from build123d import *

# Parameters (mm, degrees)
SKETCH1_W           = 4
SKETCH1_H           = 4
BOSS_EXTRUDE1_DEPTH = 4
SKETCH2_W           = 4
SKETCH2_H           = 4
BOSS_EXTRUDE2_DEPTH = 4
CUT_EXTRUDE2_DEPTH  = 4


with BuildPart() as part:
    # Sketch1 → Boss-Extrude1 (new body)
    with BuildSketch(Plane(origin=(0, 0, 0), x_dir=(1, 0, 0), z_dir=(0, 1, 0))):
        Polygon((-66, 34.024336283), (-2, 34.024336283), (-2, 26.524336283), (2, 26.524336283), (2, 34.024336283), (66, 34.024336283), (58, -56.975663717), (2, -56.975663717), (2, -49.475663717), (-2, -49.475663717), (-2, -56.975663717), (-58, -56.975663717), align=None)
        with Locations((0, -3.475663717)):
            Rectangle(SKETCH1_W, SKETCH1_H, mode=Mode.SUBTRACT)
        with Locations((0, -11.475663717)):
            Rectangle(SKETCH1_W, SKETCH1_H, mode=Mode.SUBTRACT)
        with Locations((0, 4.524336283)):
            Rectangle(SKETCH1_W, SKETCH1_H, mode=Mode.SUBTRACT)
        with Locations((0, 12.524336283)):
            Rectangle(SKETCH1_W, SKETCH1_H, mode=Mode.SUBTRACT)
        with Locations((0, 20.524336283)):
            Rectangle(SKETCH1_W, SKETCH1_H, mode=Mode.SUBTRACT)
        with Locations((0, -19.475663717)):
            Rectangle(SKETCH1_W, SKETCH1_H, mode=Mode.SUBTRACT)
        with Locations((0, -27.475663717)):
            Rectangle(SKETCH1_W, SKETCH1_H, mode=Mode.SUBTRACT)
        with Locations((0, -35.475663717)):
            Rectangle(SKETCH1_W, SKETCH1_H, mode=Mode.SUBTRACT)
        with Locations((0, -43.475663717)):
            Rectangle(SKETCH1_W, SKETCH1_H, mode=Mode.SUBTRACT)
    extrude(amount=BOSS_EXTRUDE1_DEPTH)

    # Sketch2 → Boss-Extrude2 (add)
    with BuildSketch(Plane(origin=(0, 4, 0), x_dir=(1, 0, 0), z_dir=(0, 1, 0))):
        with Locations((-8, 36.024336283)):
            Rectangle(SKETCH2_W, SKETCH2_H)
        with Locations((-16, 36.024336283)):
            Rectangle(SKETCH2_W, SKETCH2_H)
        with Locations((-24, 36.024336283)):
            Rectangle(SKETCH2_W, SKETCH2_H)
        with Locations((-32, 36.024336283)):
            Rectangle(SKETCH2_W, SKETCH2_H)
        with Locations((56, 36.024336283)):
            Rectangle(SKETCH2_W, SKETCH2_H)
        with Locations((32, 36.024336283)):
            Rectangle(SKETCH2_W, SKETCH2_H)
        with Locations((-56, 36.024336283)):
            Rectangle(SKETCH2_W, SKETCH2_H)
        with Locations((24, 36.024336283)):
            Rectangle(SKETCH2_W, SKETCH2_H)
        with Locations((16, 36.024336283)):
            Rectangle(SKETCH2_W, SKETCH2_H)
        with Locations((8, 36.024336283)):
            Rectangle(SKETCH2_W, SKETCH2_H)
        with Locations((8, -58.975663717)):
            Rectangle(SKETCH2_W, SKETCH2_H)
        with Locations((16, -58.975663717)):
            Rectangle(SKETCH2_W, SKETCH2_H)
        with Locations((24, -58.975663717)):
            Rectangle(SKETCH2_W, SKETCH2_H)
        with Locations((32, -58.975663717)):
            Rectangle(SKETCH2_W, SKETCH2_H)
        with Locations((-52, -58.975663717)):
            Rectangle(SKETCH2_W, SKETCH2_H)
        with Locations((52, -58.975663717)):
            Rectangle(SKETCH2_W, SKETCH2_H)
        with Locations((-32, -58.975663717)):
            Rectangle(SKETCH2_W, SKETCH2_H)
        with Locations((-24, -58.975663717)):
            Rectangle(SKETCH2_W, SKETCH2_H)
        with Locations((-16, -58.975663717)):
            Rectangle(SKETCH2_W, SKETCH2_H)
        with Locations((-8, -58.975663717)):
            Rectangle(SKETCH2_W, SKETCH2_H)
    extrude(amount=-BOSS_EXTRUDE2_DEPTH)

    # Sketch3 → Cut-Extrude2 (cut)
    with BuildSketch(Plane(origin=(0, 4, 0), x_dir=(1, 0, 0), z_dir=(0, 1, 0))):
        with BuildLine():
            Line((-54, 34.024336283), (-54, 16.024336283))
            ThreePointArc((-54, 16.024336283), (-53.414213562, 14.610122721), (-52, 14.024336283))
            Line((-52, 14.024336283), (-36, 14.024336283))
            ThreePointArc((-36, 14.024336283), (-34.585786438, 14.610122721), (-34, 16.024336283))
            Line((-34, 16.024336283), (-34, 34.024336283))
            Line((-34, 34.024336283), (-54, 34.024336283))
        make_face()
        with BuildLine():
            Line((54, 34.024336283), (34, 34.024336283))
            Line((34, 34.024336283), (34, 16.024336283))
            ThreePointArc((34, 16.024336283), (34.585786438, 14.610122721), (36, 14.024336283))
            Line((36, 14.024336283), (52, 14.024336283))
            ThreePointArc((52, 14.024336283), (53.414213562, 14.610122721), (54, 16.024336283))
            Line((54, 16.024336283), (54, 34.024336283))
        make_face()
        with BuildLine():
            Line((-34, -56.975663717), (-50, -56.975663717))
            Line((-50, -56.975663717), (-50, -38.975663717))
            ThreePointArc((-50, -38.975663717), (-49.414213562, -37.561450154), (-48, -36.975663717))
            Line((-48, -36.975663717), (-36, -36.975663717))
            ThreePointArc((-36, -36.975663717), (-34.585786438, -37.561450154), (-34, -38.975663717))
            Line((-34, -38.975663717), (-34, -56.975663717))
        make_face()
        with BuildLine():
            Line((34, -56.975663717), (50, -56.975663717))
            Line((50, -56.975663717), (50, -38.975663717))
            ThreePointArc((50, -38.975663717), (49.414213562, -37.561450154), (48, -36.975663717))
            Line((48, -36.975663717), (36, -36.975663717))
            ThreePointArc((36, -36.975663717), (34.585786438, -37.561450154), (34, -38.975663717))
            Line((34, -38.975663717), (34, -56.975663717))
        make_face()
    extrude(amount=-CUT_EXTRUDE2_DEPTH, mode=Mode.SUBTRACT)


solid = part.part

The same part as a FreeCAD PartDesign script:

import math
import FreeCAD as App
import Part
import Sketcher
from FreeCAD import Vector
Q = App.Units.Quantity

doc = App.newDocument("Part")
body = doc.addObject("PartDesign::Body", "Body")

sketch1 = body.newObject("Sketcher::SketchObject", "Sketch")
sketch1.AttachmentSupport = (doc.getObject("XZ_Plane"), [""])
sketch1.MapMode = "FlatFace"
sketch1.addGeometry(Part.LineSegment(Vector(-2, -34.024336, 0), Vector(-66, -34.024336, 0)), False)
sketch1.addGeometry(Part.LineSegment(Vector(-66, -34.024336, 0), Vector(-58, 56.975664, 0)), False)
sketch1.addGeometry(Part.LineSegment(Vector(-58, 56.975664, 0), Vector(-2, 56.975664, 0)), False)
sketch1.addGeometry(Part.LineSegment(Vector(-2, 56.975664, 0), Vector(-2, 49.475664, 0)), False)
sketch1.addGeometry(Part.LineSegment(Vector(-2, 49.475664, 0), Vector(2, 49.475664, 0)), False)
sketch1.addGeometry(Part.LineSegment(Vector(2, 49.475664, 0), Vector(2, 56.975664, 0)), False)
sketch1.addGeometry(Part.LineSegment(Vector(2, 56.975664, 0), Vector(58, 56.975664, 0)), False)
sketch1.addGeometry(Part.LineSegment(Vector(58, 56.975664, 0), Vector(66, -34.024336, 0)), False)
sketch1.addGeometry(Part.LineSegment(Vector(66, -34.024336, 0), Vector(2, -34.024336, 0)), False)
sketch1.addGeometry(Part.LineSegment(Vector(2, -34.024336, 0), Vector(2, -26.524336, 0)), False)
sketch1.addGeometry(Part.LineSegment(Vector(2, -26.524336, 0), Vector(-2, -26.524336, 0)), False)
sketch1.addGeometry(Part.LineSegment(Vector(-2, -26.524336, 0), Vector(-2, -34.024336, 0)), False)
sketch1.addGeometry(Part.LineSegment(Vector(-2, 45.475664, 0), Vector(-2, 41.475664, 0)), False)
sketch1.addGeometry(Part.LineSegment(Vector(-2, 41.475664, 0), Vector(2, 41.475664, 0)), False)
sketch1.addGeometry(Part.LineSegment(Vector(2, 41.475664, 0), Vector(2, 45.475664, 0)), False)
sketch1.addGeometry(Part.LineSegment(Vector(2, 45.475664, 0), Vector(-2, 45.475664, 0)), False)
sketch1.addGeometry(Part.LineSegment(Vector(-2, 37.475664, 0), Vector(-2, 33.475664, 0)), False)
sketch1.addGeometry(Part.LineSegment(Vector(-2, 33.475664, 0), Vector(2, 33.475664, 0)), False)
sketch1.addGeometry(Part.LineSegment(Vector(2, 33.475664, 0), Vector(2, 37.475664, 0)), False)
sketch1.addGeometry(Part.LineSegment(Vector(2, 37.475664, 0), Vector(-2, 37.475664, 0)), False)
sketch1.addGeometry(Part.LineSegment(Vector(-2, 29.475664, 0), Vector(-2, 25.475664, 0)), False)
sketch1.addGeometry(Part.LineSegment(Vector(-2, 25.475664, 0), Vector(2, 25.475664, 0)), False)
sketch1.addGeometry(Part.LineSegment(Vector(2, 25.475664, 0), Vector(2, 29.475664, 0)), False)
sketch1.addGeometry(Part.LineSegment(Vector(2, 29.475664, 0), Vector(-2, 29.475664, 0)), False)
sketch1.addGeometry(Part.LineSegment(Vector(-2, 21.475664, 0), Vector(-2, 17.475664, 0)), False)
sketch1.addGeometry(Part.LineSegment(Vector(-2, 17.475664, 0), Vector(2, 17.475664, 0)), False)
sketch1.addGeometry(Part.LineSegment(Vector(2, 17.475664, 0), Vector(2, 21.475664, 0)), False)
sketch1.addGeometry(Part.LineSegment(Vector(2, 21.475664, 0), Vector(-2, 21.475664, 0)), False)
sketch1.addGeometry(Part.LineSegment(Vector(-2, 13.475664, 0), Vector(-2, 9.475664, 0)), False)
sketch1.addGeometry(Part.LineSegment(Vector(-2, 9.475664, 0), Vector(2, 9.475664, 0)), False)
sketch1.addGeometry(Part.LineSegment(Vector(2, 9.475664, 0), Vector(2, 13.475664, 0)), False)
sketch1.addGeometry(Part.LineSegment(Vector(2, 13.475664, 0), Vector(-2, 13.475664, 0)), False)
sketch1.addGeometry(Part.LineSegment(Vector(-2, 5.475664, 0), Vector(-2, 1.475664, 0)), False)
sketch1.addGeometry(Part.LineSegment(Vector(-2, 1.475664, 0), Vector(2, 1.475664, 0)), False)
sketch1.addGeometry(Part.LineSegment(Vector(2, 1.475664, 0), Vector(2, 5.475664, 0)), False)
sketch1.addGeometry(Part.LineSegment(Vector(2, 5.475664, 0), Vector(-2, 5.475664, 0)), False)
sketch1.addGeometry(Part.LineSegment(Vector(-2, -2.524336, 0), Vector(-2, -6.524336, 0)), False)
sketch1.addGeometry(Part.LineSegment(Vector(-2, -6.524336, 0), Vector(2, -6.524336, 0)), False)
sketch1.addGeometry(Part.LineSegment(Vector(2, -6.524336, 0), Vector(2, -2.524336, 0)), False)
sketch1.addGeometry(Part.LineSegment(Vector(2, -2.524336, 0), Vector(-2, -2.524336, 0)), False)
sketch1.addGeometry(Part.LineSegment(Vector(-2, -10.524336, 0), Vector(-2, -14.524336, 0)), False)
sketch1.addGeometry(Part.LineSegment(Vector(-2, -14.524336, 0), Vector(2, -14.524336, 0)), False)
sketch1.addGeometry(Part.LineSegment(Vector(2, -14.524336, 0), Vector(2, -10.524336, 0)), False)
sketch1.addGeometry(Part.LineSegment(Vector(2, -10.524336, 0), Vector(-2, -10.524336, 0)), False)
sketch1.addGeometry(Part.LineSegment(Vector(-2, -18.524336, 0), Vector(-2, -22.524336, 0)), False)
sketch1.addGeometry(Part.LineSegment(Vector(-2, -22.524336, 0), Vector(2, -22.524336, 0)), False)
sketch1.addGeometry(Part.LineSegment(Vector(2, -22.524336, 0), Vector(2, -18.524336, 0)), False)
sketch1.addGeometry(Part.LineSegment(Vector(2, -18.524336, 0), Vector(-2, -18.524336, 0)), False)
sketch1.addConstraint(Sketcher.Constraint("Coincident", 0, 2, 1, 1))
sketch1.addConstraint(Sketcher.Constraint("Coincident", 1, 2, 2, 1))
sketch1.addConstraint(Sketcher.Constraint("Coincident", 2, 2, 3, 1))
sketch1.addConstraint(Sketcher.Constraint("Coincident", 3, 2, 4, 1))
sketch1.addConstraint(Sketcher.Constraint("Coincident", 4, 2, 5, 1))
sketch1.addConstraint(Sketcher.Constraint("Coincident", 5, 2, 6, 1))
sketch1.addConstraint(Sketcher.Constraint("Coincident", 6, 2, 7, 1))
sketch1.addConstraint(Sketcher.Constraint("Coincident", 7, 2, 8, 1))
sketch1.addConstraint(Sketcher.Constraint("Coincident", 8, 2, 9, 1))
sketch1.addConstraint(Sketcher.Constraint("Coincident", 9, 2, 10, 1))
sketch1.addConstraint(Sketcher.Constraint("Coincident", 10, 2, 11, 1))
sketch1.addConstraint(Sketcher.Constraint("Coincident", 11, 2, 0, 1))
sketch1.addConstraint(Sketcher.Constraint("Coincident", 12, 2, 13, 1))
sketch1.addConstraint(Sketcher.Constraint("Coincident", 13, 2, 14, 1))
sketch1.addConstraint(Sketcher.Constraint("Coincident", 14, 2, 15, 1))
sketch1.addConstraint(Sketcher.Constraint("Coincident", 15, 2, 12, 1))
sketch1.addConstraint(Sketcher.Constraint("Coincident", 16, 2, 17, 1))
sketch1.addConstraint(Sketcher.Constraint("Coincident", 17, 2, 18, 1))
sketch1.addConstraint(Sketcher.Constraint("Coincident", 18, 2, 19, 1))
sketch1.addConstraint(Sketcher.Constraint("Coincident", 19, 2, 16, 1))
sketch1.addConstraint(Sketcher.Constraint("Coincident", 20, 2, 21, 1))
sketch1.addConstraint(Sketcher.Constraint("Coincident", 21, 2, 22, 1))
sketch1.addConstraint(Sketcher.Constraint("Coincident", 22, 2, 23, 1))
sketch1.addConstraint(Sketcher.Constraint("Coincident", 23, 2, 20, 1))
sketch1.addConstraint(Sketcher.Constraint("Coincident", 24, 2, 25, 1))
sketch1.addConstraint(Sketcher.Constraint("Coincident", 25, 2, 26, 1))
sketch1.addConstraint(Sketcher.Constraint("Coincident", 26, 2, 27, 1))
sketch1.addConstraint(Sketcher.Constraint("Coincident", 27, 2, 24, 1))
sketch1.addConstraint(Sketcher.Constraint("Coincident", 28, 2, 29, 1))
sketch1.addConstraint(Sketcher.Constraint("Coincident", 29, 2, 30, 1))
sketch1.addConstraint(Sketcher.Constraint("Coincident", 30, 2, 31, 1))
sketch1.addConstraint(Sketcher.Constraint("Coincident", 31, 2, 28, 1))
sketch1.addConstraint(Sketcher.Constraint("Coincident", 32, 2, 33, 1))
sketch1.addConstraint(Sketcher.Constraint("Coincident", 33, 2, 34, 1))
sketch1.addConstraint(Sketcher.Constraint("Coincident", 34, 2, 35, 1))
sketch1.addConstraint(Sketcher.Constraint("Coincident", 35, 2, 32, 1))
sketch1.addConstraint(Sketcher.Constraint("Coincident", 36, 2, 37, 1))
sketch1.addConstraint(Sketcher.Constraint("Coincident", 37, 2, 38, 1))
sketch1.addConstraint(Sketcher.Constraint("Coincident", 38, 2, 39, 1))
sketch1.addConstraint(Sketcher.Constraint("Coincident", 39, 2, 36, 1))
sketch1.addConstraint(Sketcher.Constraint("Coincident", 40, 2, 41, 1))
sketch1.addConstraint(Sketcher.Constraint("Coincident", 41, 2, 42, 1))
sketch1.addConstraint(Sketcher.Constraint("Coincident", 42, 2, 43, 1))
sketch1.addConstraint(Sketcher.Constraint("Coincident", 43, 2, 40, 1))
sketch1.addConstraint(Sketcher.Constraint("Coincident", 44, 2, 45, 1))
sketch1.addConstraint(Sketcher.Constraint("Coincident", 45, 2, 46, 1))
sketch1.addConstraint(Sketcher.Constraint("Coincident", 46, 2, 47, 1))
sketch1.addConstraint(Sketcher.Constraint("Coincident", 47, 2, 44, 1))
sketch1.addConstraint(Sketcher.Constraint("Horizontal", 0))
sketch1.addConstraint(Sketcher.Constraint("Horizontal", 2))
sketch1.addConstraint(Sketcher.Constraint("Vertical", 3))
sketch1.addConstraint(Sketcher.Constraint("Horizontal", 4))
sketch1.addConstraint(Sketcher.Constraint("Vertical", 5))
sketch1.addConstraint(Sketcher.Constraint("Horizontal", 6))
sketch1.addConstraint(Sketcher.Constraint("Horizontal", 8))
sketch1.addConstraint(Sketcher.Constraint("Vertical", 9))
sketch1.addConstraint(Sketcher.Constraint("Horizontal", 10))
sketch1.addConstraint(Sketcher.Constraint("Vertical", 11))
sketch1.addConstraint(Sketcher.Constraint("Vertical", 12))
sketch1.addConstraint(Sketcher.Constraint("Horizontal", 13))
sketch1.addConstraint(Sketcher.Constraint("Vertical", 14))
sketch1.addConstraint(Sketcher.Constraint("Horizontal", 15))
sketch1.addConstraint(Sketcher.Constraint("Vertical", 16))
sketch1.addConstraint(Sketcher.Constraint("Horizontal", 17))
sketch1.addConstraint(Sketcher.Constraint("Vertical", 18))
sketch1.addConstraint(Sketcher.Constraint("Horizontal", 19))
sketch1.addConstraint(Sketcher.Constraint("Vertical", 20))
sketch1.addConstraint(Sketcher.Constraint("Horizontal", 21))
sketch1.addConstraint(Sketcher.Constraint("Vertical", 22))
sketch1.addConstraint(Sketcher.Constraint("Horizontal", 23))
sketch1.addConstraint(Sketcher.Constraint("Vertical", 24))
sketch1.addConstraint(Sketcher.Constraint("Horizontal", 25))
sketch1.addConstraint(Sketcher.Constraint("Vertical", 26))
sketch1.addConstraint(Sketcher.Constraint("Horizontal", 27))
sketch1.addConstraint(Sketcher.Constraint("Vertical", 28))
sketch1.addConstraint(Sketcher.Constraint("Horizontal", 29))
sketch1.addConstraint(Sketcher.Constraint("Vertical", 30))
sketch1.addConstraint(Sketcher.Constraint("Horizontal", 31))
sketch1.addConstraint(Sketcher.Constraint("Vertical", 32))
sketch1.addConstraint(Sketcher.Constraint("Horizontal", 33))
sketch1.addConstraint(Sketcher.Constraint("Vertical", 34))
sketch1.addConstraint(Sketcher.Constraint("Horizontal", 35))
sketch1.addConstraint(Sketcher.Constraint("Vertical", 36))
sketch1.addConstraint(Sketcher.Constraint("Horizontal", 37))
sketch1.addConstraint(Sketcher.Constraint("Vertical", 38))
sketch1.addConstraint(Sketcher.Constraint("Horizontal", 39))
sketch1.addConstraint(Sketcher.Constraint("Vertical", 40))
sketch1.addConstraint(Sketcher.Constraint("Horizontal", 41))
sketch1.addConstraint(Sketcher.Constraint("Vertical", 42))
sketch1.addConstraint(Sketcher.Constraint("Horizontal", 43))
sketch1.addConstraint(Sketcher.Constraint("Vertical", 44))
sketch1.addConstraint(Sketcher.Constraint("Horizontal", 45))
sketch1.addConstraint(Sketcher.Constraint("Vertical", 46))
sketch1.addConstraint(Sketcher.Constraint("Horizontal", 47))
sketch1.addConstraint(Sketcher.Constraint("Symmetric", 2, 2, 5, 2, -2))
sketch1.addConstraint(Sketcher.Constraint("Symmetric", 0, 2, 7, 2, -2))
sketch1.addConstraint(Sketcher.Constraint("Vertical", 5, 2, 8, 2))
sketch1.addConstraint(Sketcher.Constraint("Vertical", 3, 2, 10, 2))
sketch1.addConstraint(Sketcher.Constraint("Vertical", 11, 2, 12, 2))
sketch1.addConstraint(Sketcher.Constraint("Vertical", 9, 2, 13, 2))
sketch1.addConstraint(Sketcher.Constraint("Vertical", 15, 2, 16, 2))
sketch1.addConstraint(Sketcher.Constraint("Vertical", 14, 2, 17, 2))
sketch1.addConstraint(Sketcher.Constraint("Vertical", 19, 2, 20, 2))
sketch1.addConstraint(Sketcher.Constraint("Vertical", 18, 2, 21, 2))
sketch1.addConstraint(Sketcher.Constraint("Vertical", 23, 2, 24, 2))
sketch1.addConstraint(Sketcher.Constraint("Vertical", 22, 2, 25, 2))
sketch1.addConstraint(Sketcher.Constraint("Vertical", 27, 2, 28, 2))
sketch1.addConstraint(Sketcher.Constraint("Vertical", 26, 2, 29, 2))
sketch1.addConstraint(Sketcher.Constraint("Vertical", 31, 2, 32, 2))
sketch1.addConstraint(Sketcher.Constraint("Vertical", 30, 2, 33, 2))
sketch1.addConstraint(Sketcher.Constraint("Vertical", 35, 2, 36, 2))
sketch1.addConstraint(Sketcher.Constraint("Vertical", 34, 2, 37, 2))
sketch1.addConstraint(Sketcher.Constraint("Vertical", 39, 2, 40, 2))
sketch1.addConstraint(Sketcher.Constraint("Vertical", 38, 2, 41, 2))
sketch1.addConstraint(Sketcher.Constraint("Vertical", 43, 2, 44, 2))
sketch1.addConstraint(Sketcher.Constraint("Vertical", 42, 2, 45, 2))
sketch1.addConstraint(Sketcher.Constraint("Equal", 2, 6))
sketch1.addConstraint(Sketcher.Constraint("Equal", 5, 9))
sketch1.addConstraint(Sketcher.Constraint("Equal", 47, 12))
sketch1.addConstraint(Sketcher.Constraint("Equal", 14, 16))
sketch1.addConstraint(Sketcher.Constraint("Equal", 18, 20))
sketch1.addConstraint(Sketcher.Constraint("Equal", 22, 24))
sketch1.addConstraint(Sketcher.Constraint("Equal", 26, 28))
sketch1.addConstraint(Sketcher.Constraint("Equal", 30, 32))
sketch1.addConstraint(Sketcher.Constraint("Equal", 34, 36))
sketch1.addConstraint(Sketcher.Constraint("Equal", 38, 40))
sketch1.addConstraint(Sketcher.Constraint("Equal", 42, 44))
sketch1.addConstraint(Sketcher.Constraint("DistanceX", 0, 2, 0, 1, Q("64 mm")))
sketch1.addConstraint(Sketcher.Constraint("DistanceX", 2, 1, 2, 2, Q("56 mm")))
sketch1.addConstraint(Sketcher.Constraint("DistanceX", 4, 1, 4, 2, Q("4 mm")))
sketch1.addConstraint(Sketcher.Constraint("DistanceY", 3, 2, 3, 1, Q("7.5 mm")))
sketch1.addConstraint(Sketcher.Constraint("DistanceY", 0, 2, 1, 2, Q("91 mm")))
sketch1.addConstraint(Sketcher.Constraint("DistanceY", 12, 2, 3, 2, Q("8 mm")))
sketch1.addConstraint(Sketcher.Constraint("DistanceY", 16, 2, 12, 2, Q("8 mm")))
sketch1.addConstraint(Sketcher.Constraint("DistanceY", 20, 2, 16, 2, Q("8 mm")))
sketch1.addConstraint(Sketcher.Constraint("DistanceY", 24, 2, 20, 2, Q("8 mm")))
sketch1.addConstraint(Sketcher.Constraint("DistanceY", 28, 2, 24, 2, Q("8 mm")))
sketch1.addConstraint(Sketcher.Constraint("DistanceY", 32, 2, 28, 2, Q("8 mm")))
sketch1.addConstraint(Sketcher.Constraint("DistanceY", 36, 2, 32, 2, Q("8 mm")))
sketch1.addConstraint(Sketcher.Constraint("DistanceY", 40, 2, 36, 2, Q("8 mm")))
sketch1.addConstraint(Sketcher.Constraint("DistanceY", 10, 2, 44, 2, Q("4 mm")))
sketch1.addConstraint(Sketcher.Constraint("DistanceY", 0, 2, -1, 1, Q("34.024336 mm")))
pad1 = body.newObject("PartDesign::Pad", "Pad")
pad1.Profile = sketch1
pad1.Length = 4
pad1.Reversed = True

sketch2 = body.newObject("Sketcher::SketchObject", "Sketch001")
sketch2.AttachmentSupport = (doc.getObject("XZ_Plane"), [""])
sketch2.MapMode = "FlatFace"
sketch2.AttachmentOffset = App.Placement(Vector(0, 0, -4), App.Rotation())
sketch2.addGeometry(Part.LineSegment(Vector(-10, -38.024336, 0), Vector(-10, -34.024336, 0)), False)
sketch2.addGeometry(Part.LineSegment(Vector(-10, -34.024336, 0), Vector(-6, -34.024336, 0)), False)
sketch2.addGeometry(Part.LineSegment(Vector(-6, -34.024336, 0), Vector(-6, -38.024336, 0)), False)
sketch2.addGeometry(Part.LineSegment(Vector(-6, -38.024336, 0), Vector(-10, -38.024336, 0)), False)
sketch2.addGeometry(Part.LineSegment(Vector(-18, -38.024336, 0), Vector(-18, -34.024336, 0)), False)
sketch2.addGeometry(Part.LineSegment(Vector(-18, -34.024336, 0), Vector(-14, -34.024336, 0)), False)
sketch2.addGeometry(Part.LineSegment(Vector(-14, -34.024336, 0), Vector(-14, -38.024336, 0)), False)
sketch2.addGeometry(Part.LineSegment(Vector(-14, -38.024336, 0), Vector(-18, -38.024336, 0)), False)
sketch2.addGeometry(Part.LineSegment(Vector(-26, -38.024336, 0), Vector(-26, -34.024336, 0)), False)
sketch2.addGeometry(Part.LineSegment(Vector(-26, -34.024336, 0), Vector(-22, -34.024336, 0)), False)
sketch2.addGeometry(Part.LineSegment(Vector(-22, -34.024336, 0), Vector(-22, -38.024336, 0)), False)
sketch2.addGeometry(Part.LineSegment(Vector(-22, -38.024336, 0), Vector(-26, -38.024336, 0)), False)
sketch2.addGeometry(Part.LineSegment(Vector(-34, -38.024336, 0), Vector(-34, -34.024336, 0)), False)
sketch2.addGeometry(Part.LineSegment(Vector(-34, -34.024336, 0), Vector(-30, -34.024336, 0)), False)
sketch2.addGeometry(Part.LineSegment(Vector(-30, -34.024336, 0), Vector(-30, -38.024336, 0)), False)
sketch2.addGeometry(Part.LineSegment(Vector(-30, -38.024336, 0), Vector(-34, -38.024336, 0)), False)
sketch2.addGeometry(Part.LineSegment(Vector(54, -38.024336, 0), Vector(54, -34.024336, 0)), False)
sketch2.addGeometry(Part.LineSegment(Vector(54, -34.024336, 0), Vector(58, -34.024336, 0)), False)
sketch2.addGeometry(Part.LineSegment(Vector(58, -34.024336, 0), Vector(58, -38.024336, 0)), False)
sketch2.addGeometry(Part.LineSegment(Vector(58, -38.024336, 0), Vector(54, -38.024336, 0)), False)
sketch2.addGeometry(Part.LineSegment(Vector(30, -38.024336, 0), Vector(30, -34.024336, 0)), False)
sketch2.addGeometry(Part.LineSegment(Vector(30, -34.024336, 0), Vector(34, -34.024336, 0)), False)
sketch2.addGeometry(Part.LineSegment(Vector(34, -34.024336, 0), Vector(34, -38.024336, 0)), False)
sketch2.addGeometry(Part.LineSegment(Vector(34, -38.024336, 0), Vector(30, -38.024336, 0)), False)
sketch2.addGeometry(Part.LineSegment(Vector(-58, -38.024336, 0), Vector(-58, -34.024336, 0)), False)
sketch2.addGeometry(Part.LineSegment(Vector(-58, -34.024336, 0), Vector(-54, -34.024336, 0)), False)
sketch2.addGeometry(Part.LineSegment(Vector(-54, -34.024336, 0), Vector(-54, -38.024336, 0)), False)
sketch2.addGeometry(Part.LineSegment(Vector(-54, -38.024336, 0), Vector(-58, -38.024336, 0)), False)
sketch2.addGeometry(Part.LineSegment(Vector(22, -38.024336, 0), Vector(22, -34.024336, 0)), False)
sketch2.addGeometry(Part.LineSegment(Vector(22, -34.024336, 0), Vector(26, -34.024336, 0)), False)
sketch2.addGeometry(Part.LineSegment(Vector(26, -34.024336, 0), Vector(26, -38.024336, 0)), False)
sketch2.addGeometry(Part.LineSegment(Vector(26, -38.024336, 0), Vector(22, -38.024336, 0)), False)
sketch2.addGeometry(Part.LineSegment(Vector(14, -38.024336, 0), Vector(14, -34.024336, 0)), False)
sketch2.addGeometry(Part.LineSegment(Vector(14, -34.024336, 0), Vector(18, -34.024336, 0)), False)
sketch2.addGeometry(Part.LineSegment(Vector(18, -34.024336, 0), Vector(18, -38.024336, 0)), False)
sketch2.addGeometry(Part.LineSegment(Vector(18, -38.024336, 0), Vector(14, -38.024336, 0)), False)
sketch2.addGeometry(Part.LineSegment(Vector(6, -38.024336, 0), Vector(6, -34.024336, 0)), False)
sketch2.addGeometry(Part.LineSegment(Vector(6, -34.024336, 0), Vector(10, -34.024336, 0)), False)
sketch2.addGeometry(Part.LineSegment(Vector(10, -34.024336, 0), Vector(10, -38.024336, 0)), False)
sketch2.addGeometry(Part.LineSegment(Vector(10, -38.024336, 0), Vector(6, -38.024336, 0)), False)
sketch2.addGeometry(Part.LineSegment(Vector(6, 56.975664, 0), Vector(6, 60.975664, 0)), False)
sketch2.addGeometry(Part.LineSegment(Vector(6, 60.975664, 0), Vector(10, 60.975664, 0)), False)
sketch2.addGeometry(Part.LineSegment(Vector(10, 60.975664, 0), Vector(10, 56.975664, 0)), False)
sketch2.addGeometry(Part.LineSegment(Vector(10, 56.975664, 0), Vector(6, 56.975664, 0)), False)
sketch2.addGeometry(Part.LineSegment(Vector(14, 56.975664, 0), Vector(14, 60.975664, 0)), False)
sketch2.addGeometry(Part.LineSegment(Vector(14, 60.975664, 0), Vector(18, 60.975664, 0)), False)
sketch2.addGeometry(Part.LineSegment(Vector(18, 60.975664, 0), Vector(18, 56.975664, 0)), False)
sketch2.addGeometry(Part.LineSegment(Vector(18, 56.975664, 0), Vector(14, 56.975664, 0)), False)
sketch2.addGeometry(Part.LineSegment(Vector(22, 56.975664, 0), Vector(22, 60.975664, 0)), False)
sketch2.addGeometry(Part.LineSegment(Vector(22, 60.975664, 0), Vector(26, 60.975664, 0)), False)
sketch2.addGeometry(Part.LineSegment(Vector(26, 60.975664, 0), Vector(26, 56.975664, 0)), False)
sketch2.addGeometry(Part.LineSegment(Vector(26, 56.975664, 0), Vector(22, 56.975664, 0)), False)
sketch2.addGeometry(Part.LineSegment(Vector(30, 56.975664, 0), Vector(30, 60.975664, 0)), False)
sketch2.addGeometry(Part.LineSegment(Vector(30, 60.975664, 0), Vector(34, 60.975664, 0)), False)
sketch2.addGeometry(Part.LineSegment(Vector(34, 60.975664, 0), Vector(34, 56.975664, 0)), False)
sketch2.addGeometry(Part.LineSegment(Vector(34, 56.975664, 0), Vector(30, 56.975664, 0)), False)
sketch2.addGeometry(Part.LineSegment(Vector(-54, 56.975664, 0), Vector(-54, 60.975664, 0)), False)
sketch2.addGeometry(Part.LineSegment(Vector(-54, 60.975664, 0), Vector(-50, 60.975664, 0)), False)
sketch2.addGeometry(Part.LineSegment(Vector(-50, 60.975664, 0), Vector(-50, 56.975664, 0)), False)
sketch2.addGeometry(Part.LineSegment(Vector(-50, 56.975664, 0), Vector(-54, 56.975664, 0)), False)
sketch2.addGeometry(Part.LineSegment(Vector(50, 56.975664, 0), Vector(50, 60.975664, 0)), False)
sketch2.addGeometry(Part.LineSegment(Vector(50, 60.975664, 0), Vector(54, 60.975664, 0)), False)
sketch2.addGeometry(Part.LineSegment(Vector(54, 60.975664, 0), Vector(54, 56.975664, 0)), False)
sketch2.addGeometry(Part.LineSegment(Vector(54, 56.975664, 0), Vector(50, 56.975664, 0)), False)
sketch2.addGeometry(Part.LineSegment(Vector(-34, 56.975664, 0), Vector(-34, 60.975664, 0)), False)
sketch2.addGeometry(Part.LineSegment(Vector(-34, 60.975664, 0), Vector(-30, 60.975664, 0)), False)
sketch2.addGeometry(Part.LineSegment(Vector(-30, 60.975664, 0), Vector(-30, 56.975664, 0)), False)
sketch2.addGeometry(Part.LineSegment(Vector(-30, 56.975664, 0), Vector(-34, 56.975664, 0)), False)
sketch2.addGeometry(Part.LineSegment(Vector(-26, 56.975664, 0), Vector(-26, 60.975664, 0)), False)
sketch2.addGeometry(Part.LineSegment(Vector(-26, 60.975664, 0), Vector(-22, 60.975664, 0)), False)
sketch2.addGeometry(Part.LineSegment(Vector(-22, 60.975664, 0), Vector(-22, 56.975664, 0)), False)
sketch2.addGeometry(Part.LineSegment(Vector(-22, 56.975664, 0), Vector(-26, 56.975664, 0)), False)
sketch2.addGeometry(Part.LineSegment(Vector(-18, 56.975664, 0), Vector(-18, 60.975664, 0)), False)
sketch2.addGeometry(Part.LineSegment(Vector(-18, 60.975664, 0), Vector(-14, 60.975664, 0)), False)
sketch2.addGeometry(Part.LineSegment(Vector(-14, 60.975664, 0), Vector(-14, 56.975664, 0)), False)
sketch2.addGeometry(Part.LineSegment(Vector(-14, 56.975664, 0), Vector(-18, 56.975664, 0)), False)
sketch2.addGeometry(Part.LineSegment(Vector(-10, 56.975664, 0), Vector(-10, 60.975664, 0)), False)
sketch2.addGeometry(Part.LineSegment(Vector(-10, 60.975664, 0), Vector(-6, 60.975664, 0)), False)
sketch2.addGeometry(Part.LineSegment(Vector(-6, 60.975664, 0), Vector(-6, 56.975664, 0)), False)
sketch2.addGeometry(Part.LineSegment(Vector(-6, 56.975664, 0), Vector(-10, 56.975664, 0)), False)
sketch2.addConstraint(Sketcher.Constraint("Coincident", 0, 2, 1, 1))
sketch2.addConstraint(Sketcher.Constraint("Coincident", 1, 2, 2, 1))
sketch2.addConstraint(Sketcher.Constraint("Coincident", 2, 2, 3, 1))
sketch2.addConstraint(Sketcher.Constraint("Coincident", 3, 2, 0, 1))
sketch2.addConstraint(Sketcher.Constraint("Coincident", 4, 2, 5, 1))
sketch2.addConstraint(Sketcher.Constraint("Coincident", 5, 2, 6, 1))
sketch2.addConstraint(Sketcher.Constraint("Coincident", 6, 2, 7, 1))
sketch2.addConstraint(Sketcher.Constraint("Coincident", 7, 2, 4, 1))
sketch2.addConstraint(Sketcher.Constraint("Coincident", 8, 2, 9, 1))
sketch2.addConstraint(Sketcher.Constraint("Coincident", 9, 2, 10, 1))
sketch2.addConstraint(Sketcher.Constraint("Coincident", 10, 2, 11, 1))
sketch2.addConstraint(Sketcher.Constraint("Coincident", 11, 2, 8, 1))
sketch2.addConstraint(Sketcher.Constraint("Coincident", 12, 2, 13, 1))
sketch2.addConstraint(Sketcher.Constraint("Coincident", 13, 2, 14, 1))
sketch2.addConstraint(Sketcher.Constraint("Coincident", 14, 2, 15, 1))
sketch2.addConstraint(Sketcher.Constraint("Coincident", 15, 2, 12, 1))
sketch2.addConstraint(Sketcher.Constraint("Coincident", 16, 2, 17, 1))
sketch2.addConstraint(Sketcher.Constraint("Coincident", 17, 2, 18, 1))
sketch2.addConstraint(Sketcher.Constraint("Coincident", 18, 2, 19, 1))
sketch2.addConstraint(Sketcher.Constraint("Coincident", 19, 2, 16, 1))
sketch2.addConstraint(Sketcher.Constraint("Coincident", 20, 2, 21, 1))
sketch2.addConstraint(Sketcher.Constraint("Coincident", 21, 2, 22, 1))
sketch2.addConstraint(Sketcher.Constraint("Coincident", 22, 2, 23, 1))
sketch2.addConstraint(Sketcher.Constraint("Coincident", 23, 2, 20, 1))
sketch2.addConstraint(Sketcher.Constraint("Coincident", 24, 2, 25, 1))
sketch2.addConstraint(Sketcher.Constraint("Coincident", 25, 2, 26, 1))
sketch2.addConstraint(Sketcher.Constraint("Coincident", 26, 2, 27, 1))
sketch2.addConstraint(Sketcher.Constraint("Coincident", 27, 2, 24, 1))
sketch2.addConstraint(Sketcher.Constraint("Coincident", 28, 2, 29, 1))
sketch2.addConstraint(Sketcher.Constraint("Coincident", 29, 2, 30, 1))
sketch2.addConstraint(Sketcher.Constraint("Coincident", 30, 2, 31, 1))
sketch2.addConstraint(Sketcher.Constraint("Coincident", 31, 2, 28, 1))
sketch2.addConstraint(Sketcher.Constraint("Coincident", 32, 2, 33, 1))
sketch2.addConstraint(Sketcher.Constraint("Coincident", 33, 2, 34, 1))
sketch2.addConstraint(Sketcher.Constraint("Coincident", 34, 2, 35, 1))
sketch2.addConstraint(Sketcher.Constraint("Coincident", 35, 2, 32, 1))
sketch2.addConstraint(Sketcher.Constraint("Coincident", 36, 2, 37, 1))
sketch2.addConstraint(Sketcher.Constraint("Coincident", 37, 2, 38, 1))
sketch2.addConstraint(Sketcher.Constraint("Coincident", 38, 2, 39, 1))
sketch2.addConstraint(Sketcher.Constraint("Coincident", 39, 2, 36, 1))
sketch2.addConstraint(Sketcher.Constraint("Coincident", 40, 2, 41, 1))
sketch2.addConstraint(Sketcher.Constraint("Coincident", 41, 2, 42, 1))
sketch2.addConstraint(Sketcher.Constraint("Coincident", 42, 2, 43, 1))
sketch2.addConstraint(Sketcher.Constraint("Coincident", 43, 2, 40, 1))
sketch2.addConstraint(Sketcher.Constraint("Coincident", 44, 2, 45, 1))
sketch2.addConstraint(Sketcher.Constraint("Coincident", 45, 2, 46, 1))
sketch2.addConstraint(Sketcher.Constraint("Coincident", 46, 2, 47, 1))
sketch2.addConstraint(Sketcher.Constraint("Coincident", 47, 2, 44, 1))
sketch2.addConstraint(Sketcher.Constraint("Coincident", 48, 2, 49, 1))
sketch2.addConstraint(Sketcher.Constraint("Coincident", 49, 2, 50, 1))
sketch2.addConstraint(Sketcher.Constraint("Coincident", 50, 2, 51, 1))
sketch2.addConstraint(Sketcher.Constraint("Coincident", 51, 2, 48, 1))
sketch2.addConstraint(Sketcher.Constraint("Coincident", 52, 2, 53, 1))
sketch2.addConstraint(Sketcher.Constraint("Coincident", 53, 2, 54, 1))
sketch2.addConstraint(Sketcher.Constraint("Coincident", 54, 2, 55, 1))
sketch2.addConstraint(Sketcher.Constraint("Coincident", 55, 2, 52, 1))
sketch2.addConstraint(Sketcher.Constraint("Coincident", 56, 2, 57, 1))
sketch2.addConstraint(Sketcher.Constraint("Coincident", 57, 2, 58, 1))
sketch2.addConstraint(Sketcher.Constraint("Coincident", 58, 2, 59, 1))
sketch2.addConstraint(Sketcher.Constraint("Coincident", 59, 2, 56, 1))
sketch2.addConstraint(Sketcher.Constraint("Coincident", 60, 2, 61, 1))
sketch2.addConstraint(Sketcher.Constraint("Coincident", 61, 2, 62, 1))
sketch2.addConstraint(Sketcher.Constraint("Coincident", 62, 2, 63, 1))
sketch2.addConstraint(Sketcher.Constraint("Coincident", 63, 2, 60, 1))
sketch2.addConstraint(Sketcher.Constraint("Coincident", 64, 2, 65, 1))
sketch2.addConstraint(Sketcher.Constraint("Coincident", 65, 2, 66, 1))
sketch2.addConstraint(Sketcher.Constraint("Coincident", 66, 2, 67, 1))
sketch2.addConstraint(Sketcher.Constraint("Coincident", 67, 2, 64, 1))
sketch2.addConstraint(Sketcher.Constraint("Coincident", 68, 2, 69, 1))
sketch2.addConstraint(Sketcher.Constraint("Coincident", 69, 2, 70, 1))
sketch2.addConstraint(Sketcher.Constraint("Coincident", 70, 2, 71, 1))
sketch2.addConstraint(Sketcher.Constraint("Coincident", 71, 2, 68, 1))
sketch2.addConstraint(Sketcher.Constraint("Coincident", 72, 2, 73, 1))
sketch2.addConstraint(Sketcher.Constraint("Coincident", 73, 2, 74, 1))
sketch2.addConstraint(Sketcher.Constraint("Coincident", 74, 2, 75, 1))
sketch2.addConstraint(Sketcher.Constraint("Coincident", 75, 2, 72, 1))
sketch2.addConstraint(Sketcher.Constraint("Coincident", 76, 2, 77, 1))
sketch2.addConstraint(Sketcher.Constraint("Coincident", 77, 2, 78, 1))
sketch2.addConstraint(Sketcher.Constraint("Coincident", 78, 2, 79, 1))
sketch2.addConstraint(Sketcher.Constraint("Coincident", 79, 2, 76, 1))
sketch2.addConstraint(Sketcher.Constraint("Vertical", 0))
sketch2.addConstraint(Sketcher.Constraint("Horizontal", 1))
sketch2.addConstraint(Sketcher.Constraint("Vertical", 2))
sketch2.addConstraint(Sketcher.Constraint("Horizontal", 3))
sketch2.addConstraint(Sketcher.Constraint("Vertical", 4))
sketch2.addConstraint(Sketcher.Constraint("Horizontal", 5))
sketch2.addConstraint(Sketcher.Constraint("Vertical", 6))
sketch2.addConstraint(Sketcher.Constraint("Horizontal", 7))
sketch2.addConstraint(Sketcher.Constraint("Vertical", 8))
sketch2.addConstraint(Sketcher.Constraint("Horizontal", 9))
sketch2.addConstraint(Sketcher.Constraint("Vertical", 10))
sketch2.addConstraint(Sketcher.Constraint("Horizontal", 11))
sketch2.addConstraint(Sketcher.Constraint("Vertical", 12))
sketch2.addConstraint(Sketcher.Constraint("Horizontal", 13))
sketch2.addConstraint(Sketcher.Constraint("Vertical", 14))
sketch2.addConstraint(Sketcher.Constraint("Horizontal", 15))
sketch2.addConstraint(Sketcher.Constraint("Vertical", 16))
sketch2.addConstraint(Sketcher.Constraint("Horizontal", 17))
sketch2.addConstraint(Sketcher.Constraint("Vertical", 18))
sketch2.addConstraint(Sketcher.Constraint("Horizontal", 19))
sketch2.addConstraint(Sketcher.Constraint("Vertical", 20))
sketch2.addConstraint(Sketcher.Constraint("Horizontal", 21))
sketch2.addConstraint(Sketcher.Constraint("Vertical", 22))
sketch2.addConstraint(Sketcher.Constraint("Horizontal", 23))
sketch2.addConstraint(Sketcher.Constraint("Vertical", 24))
sketch2.addConstraint(Sketcher.Constraint("Horizontal", 25))
sketch2.addConstraint(Sketcher.Constraint("Vertical", 26))
sketch2.addConstraint(Sketcher.Constraint("Horizontal", 27))
sketch2.addConstraint(Sketcher.Constraint("Vertical", 28))
sketch2.addConstraint(Sketcher.Constraint("Horizontal", 29))
sketch2.addConstraint(Sketcher.Constraint("Vertical", 30))
sketch2.addConstraint(Sketcher.Constraint("Horizontal", 31))
sketch2.addConstraint(Sketcher.Constraint("Vertical", 32))
sketch2.addConstraint(Sketcher.Constraint("Horizontal", 33))
sketch2.addConstraint(Sketcher.Constraint("Vertical", 34))
sketch2.addConstraint(Sketcher.Constraint("Horizontal", 35))
sketch2.addConstraint(Sketcher.Constraint("Vertical", 36))
sketch2.addConstraint(Sketcher.Constraint("Horizontal", 37))
sketch2.addConstraint(Sketcher.Constraint("Vertical", 38))
sketch2.addConstraint(Sketcher.Constraint("Horizontal", 39))
sketch2.addConstraint(Sketcher.Constraint("Vertical", 40))
sketch2.addConstraint(Sketcher.Constraint("Horizontal", 41))
sketch2.addConstraint(Sketcher.Constraint("Vertical", 42))
sketch2.addConstraint(Sketcher.Constraint("Horizontal", 43))
sketch2.addConstraint(Sketcher.Constraint("Vertical", 44))
sketch2.addConstraint(Sketcher.Constraint("Horizontal", 45))
sketch2.addConstraint(Sketcher.Constraint("Vertical", 46))
sketch2.addConstraint(Sketcher.Constraint("Horizontal", 47))
sketch2.addConstraint(Sketcher.Constraint("Vertical", 48))
sketch2.addConstraint(Sketcher.Constraint("Horizontal", 49))
sketch2.addConstraint(Sketcher.Constraint("Vertical", 50))
sketch2.addConstraint(Sketcher.Constraint("Horizontal", 51))
sketch2.addConstraint(Sketcher.Constraint("Vertical", 52))
sketch2.addConstraint(Sketcher.Constraint("Horizontal", 53))
sketch2.addConstraint(Sketcher.Constraint("Vertical", 54))
sketch2.addConstraint(Sketcher.Constraint("Horizontal", 55))
sketch2.addConstraint(Sketcher.Constraint("Vertical", 56))
sketch2.addConstraint(Sketcher.Constraint("Horizontal", 57))
sketch2.addConstraint(Sketcher.Constraint("Vertical", 58))
sketch2.addConstraint(Sketcher.Constraint("Horizontal", 59))
sketch2.addConstraint(Sketcher.Constraint("Vertical", 60))
sketch2.addConstraint(Sketcher.Constraint("Horizontal", 61))
sketch2.addConstraint(Sketcher.Constraint("Vertical", 62))
sketch2.addConstraint(Sketcher.Constraint("Horizontal", 63))
sketch2.addConstraint(Sketcher.Constraint("Vertical", 64))
sketch2.addConstraint(Sketcher.Constraint("Horizontal", 65))
sketch2.addConstraint(Sketcher.Constraint("Vertical", 66))
sketch2.addConstraint(Sketcher.Constraint("Horizontal", 67))
sketch2.addConstraint(Sketcher.Constraint("Vertical", 68))
sketch2.addConstraint(Sketcher.Constraint("Horizontal", 69))
sketch2.addConstraint(Sketcher.Constraint("Vertical", 70))
sketch2.addConstraint(Sketcher.Constraint("Horizontal", 71))
sketch2.addConstraint(Sketcher.Constraint("Vertical", 72))
sketch2.addConstraint(Sketcher.Constraint("Horizontal", 73))
sketch2.addConstraint(Sketcher.Constraint("Vertical", 74))
sketch2.addConstraint(Sketcher.Constraint("Horizontal", 75))
sketch2.addConstraint(Sketcher.Constraint("Vertical", 76))
sketch2.addConstraint(Sketcher.Constraint("Horizontal", 77))
sketch2.addConstraint(Sketcher.Constraint("Vertical", 78))
sketch2.addConstraint(Sketcher.Constraint("Horizontal", 79))
sketch2.addConstraint(Sketcher.Constraint("Symmetric", 13, 2, 20, 2, -2))
sketch2.addConstraint(Sketcher.Constraint("Symmetric", 15, 2, 22, 2, -2))
sketch2.addConstraint(Sketcher.Constraint("Symmetric", 17, 2, 24, 2, -2))
sketch2.addConstraint(Sketcher.Constraint("Symmetric", 19, 2, 26, 2, -2))
sketch2.addConstraint(Sketcher.Constraint("Symmetric", 9, 2, 28, 2, -2))
sketch2.addConstraint(Sketcher.Constraint("Symmetric", 11, 2, 30, 2, -2))
sketch2.addConstraint(Sketcher.Constraint("Symmetric", 5, 2, 32, 2, -2))
sketch2.addConstraint(Sketcher.Constraint("Symmetric", 7, 2, 34, 2, -2))
sketch2.addConstraint(Sketcher.Constraint("Symmetric", 1, 2, 36, 2, -2))
sketch2.addConstraint(Sketcher.Constraint("Symmetric", 3, 2, 38, 2, -2))
sketch2.addConstraint(Sketcher.Constraint("Symmetric", 57, 2, 60, 2, -2))
sketch2.addConstraint(Sketcher.Constraint("Symmetric", 59, 2, 62, 2, -2))
sketch2.addConstraint(Sketcher.Constraint("Symmetric", 53, 2, 64, 2, -2))
sketch2.addConstraint(Sketcher.Constraint("Symmetric", 55, 2, 66, 2, -2))
sketch2.addConstraint(Sketcher.Constraint("Symmetric", 49, 2, 68, 2, -2))
sketch2.addConstraint(Sketcher.Constraint("Symmetric", 51, 2, 70, 2, -2))
sketch2.addConstraint(Sketcher.Constraint("Symmetric", 45, 2, 72, 2, -2))
sketch2.addConstraint(Sketcher.Constraint("Symmetric", 47, 2, 74, 2, -2))
sketch2.addConstraint(Sketcher.Constraint("Symmetric", 41, 2, 76, 2, -2))
sketch2.addConstraint(Sketcher.Constraint("Symmetric", 43, 2, 78, 2, -2))
sketch2.addConstraint(Sketcher.Constraint("Horizontal", 1, 2, 4, 2))
sketch2.addConstraint(Sketcher.Constraint("Horizontal", 3, 2, 6, 2))
sketch2.addConstraint(Sketcher.Constraint("Horizontal", 5, 2, 8, 2))
sketch2.addConstraint(Sketcher.Constraint("Horizontal", 7, 2, 10, 2))
sketch2.addConstraint(Sketcher.Constraint("Horizontal", 9, 2, 12, 2))
sketch2.addConstraint(Sketcher.Constraint("Horizontal", 11, 2, 14, 2))
sketch2.addConstraint(Sketcher.Constraint("Horizontal", 13, 2, 16, 2))
sketch2.addConstraint(Sketcher.Constraint("Horizontal", 15, 2, 18, 2))
sketch2.addConstraint(Sketcher.Constraint("Horizontal", 41, 2, 44, 2))
sketch2.addConstraint(Sketcher.Constraint("Horizontal", 43, 2, 46, 2))
sketch2.addConstraint(Sketcher.Constraint("Horizontal", 45, 2, 48, 2))
sketch2.addConstraint(Sketcher.Constraint("Horizontal", 47, 2, 50, 2))
sketch2.addConstraint(Sketcher.Constraint("Horizontal", 49, 2, 52, 2))
sketch2.addConstraint(Sketcher.Constraint("Horizontal", 51, 2, 54, 2))
sketch2.addConstraint(Sketcher.Constraint("Horizontal", 53, 2, 56, 2))
sketch2.addConstraint(Sketcher.Constraint("Horizontal", 55, 2, 58, 2))
sketch2.addConstraint(Sketcher.Constraint("Vertical", 39, 2, 40, 2))
sketch2.addConstraint(Sketcher.Constraint("Vertical", 38, 2, 41, 2))
sketch2.addConstraint(Sketcher.Constraint("Vertical", 35, 2, 44, 2))
sketch2.addConstraint(Sketcher.Constraint("Vertical", 34, 2, 45, 2))
sketch2.addConstraint(Sketcher.Constraint("Vertical", 31, 2, 48, 2))
sketch2.addConstraint(Sketcher.Constraint("Vertical", 30, 2, 49, 2))
sketch2.addConstraint(Sketcher.Constraint("Vertical", 23, 2, 52, 2))
sketch2.addConstraint(Sketcher.Constraint("Vertical", 22, 2, 53, 2))
sketch2.addConstraint(Sketcher.Constraint("Vertical", 26, 2, 56, 2))
sketch2.addConstraint(Sketcher.Constraint("Equal", 3, 5))
sketch2.addConstraint(Sketcher.Constraint("Equal", 7, 9))
sketch2.addConstraint(Sketcher.Constraint("Equal", 11, 13))
sketch2.addConstraint(Sketcher.Constraint("Equal", 15, 17))
sketch2.addConstraint(Sketcher.Constraint("Equal", 55, 57))
sketch2.addConstraint(Sketcher.Constraint("Equal", 79, 0))
sketch2.addConstraint(Sketcher.Constraint("Equal", 38, 40))
sketch2.addConstraint(Sketcher.Constraint("DistanceX", 1, 1, 1, 2, Q("4 mm")))
sketch2.addConstraint(Sketcher.Constraint("DistanceX", 0, 2, -1, 1, Q("10 mm")))
sketch2.addConstraint(Sketcher.Constraint("DistanceX", 4, 2, -1, 1, Q("18 mm")))
sketch2.addConstraint(Sketcher.Constraint("DistanceX", 8, 2, -1, 1, Q("26 mm")))
sketch2.addConstraint(Sketcher.Constraint("DistanceX", 12, 2, -1, 1, Q("34 mm")))
sketch2.addConstraint(Sketcher.Constraint("DistanceX", -1, 1, 16, 2, Q("54 mm")))
sketch2.addConstraint(Sketcher.Constraint("DistanceY", 0, 2, -1, 1, Q("34.024336 mm")))
sketch2.addConstraint(Sketcher.Constraint("DistanceY", -1, 1, 40, 2, Q("60.975664 mm")))
pad2 = body.newObject("PartDesign::Pad", "Pad001")
pad2.Profile = sketch2
pad2.Length = 4

sketch3 = body.newObject("Sketcher::SketchObject", "Sketch002")
sketch3.AttachmentSupport = (doc.getObject("XZ_Plane"), [""])
sketch3.MapMode = "FlatFace"
sketch3.AttachmentOffset = App.Placement(Vector(0, 0, -4), App.Rotation())
sketch3.addGeometry(Part.LineSegment(Vector(-54, -34.024336, 0), Vector(-54, -16.024336, 0)), False)
sketch3.addGeometry(Part.ArcOfCircle(Part.Circle(Vector(-52, -16.024336, 0), Vector(0, 0, 1), 2), math.radians(90), math.radians(180)), False)
sketch3.addGeometry(Part.LineSegment(Vector(-52, -14.024336, 0), Vector(-36, -14.024336, 0)), False)
sketch3.addGeometry(Part.ArcOfCircle(Part.Circle(Vector(-36, -16.024336, 0), Vector(0, 0, 1), 2), math.radians(0), math.radians(90)), False)
sketch3.addGeometry(Part.LineSegment(Vector(-34, -16.024336, 0), Vector(-34, -34.024336, 0)), False)
sketch3.addGeometry(Part.LineSegment(Vector(-34, -34.024336, 0), Vector(-54, -34.024336, 0)), False)
sketch3.addGeometry(Part.LineSegment(Vector(54, -34.024336, 0), Vector(34, -34.024336, 0)), False)
sketch3.addGeometry(Part.LineSegment(Vector(34, -34.024336, 0), Vector(34, -16.024336, 0)), False)
sketch3.addGeometry(Part.ArcOfCircle(Part.Circle(Vector(36, -16.024336, 0), Vector(0, 0, 1), 2), math.radians(90), math.radians(180)), False)
sketch3.addGeometry(Part.LineSegment(Vector(36, -14.024336, 0), Vector(52, -14.024336, 0)), False)
sketch3.addGeometry(Part.ArcOfCircle(Part.Circle(Vector(52, -16.024336, 0), Vector(0, 0, 1), 2), math.radians(0), math.radians(90)), False)
sketch3.addGeometry(Part.LineSegment(Vector(54, -16.024336, 0), Vector(54, -34.024336, 0)), False)
sketch3.addGeometry(Part.LineSegment(Vector(-50, 56.975664, 0), Vector(-34, 56.975664, 0)), False)
sketch3.addGeometry(Part.LineSegment(Vector(-34, 56.975664, 0), Vector(-34, 38.975664, 0)), False)
sketch3.addGeometry(Part.ArcOfCircle(Part.Circle(Vector(-36, 38.975664, 0), Vector(0, 0, 1), 2), math.radians(-90), math.radians(0)), False)
sketch3.addGeometry(Part.LineSegment(Vector(-36, 36.975664, 0), Vector(-48, 36.975664, 0)), False)
sketch3.addGeometry(Part.ArcOfCircle(Part.Circle(Vector(-48, 38.975664, 0), Vector(0, 0, 1), 2), math.radians(180), math.radians(270)), False)
sketch3.addGeometry(Part.LineSegment(Vector(-50, 38.975664, 0), Vector(-50, 56.975664, 0)), False)
sketch3.addGeometry(Part.LineSegment(Vector(34, 56.975664, 0), Vector(50, 56.975664, 0)), False)
sketch3.addGeometry(Part.LineSegment(Vector(50, 56.975664, 0), Vector(50, 38.975664, 0)), False)
sketch3.addGeometry(Part.ArcOfCircle(Part.Circle(Vector(48, 38.975664, 0), Vector(0, 0, 1), 2), math.radians(-90), math.radians(0)), False)
sketch3.addGeometry(Part.LineSegment(Vector(48, 36.975664, 0), Vector(36, 36.975664, 0)), False)
sketch3.addGeometry(Part.ArcOfCircle(Part.Circle(Vector(36, 38.975664, 0), Vector(0, 0, 1), 2), math.radians(180), math.radians(270)), False)
sketch3.addGeometry(Part.LineSegment(Vector(34, 38.975664, 0), Vector(34, 56.975664, 0)), False)
sketch3.addConstraint(Sketcher.Constraint("Tangent", 0, 2, 1, 2))
sketch3.addConstraint(Sketcher.Constraint("Tangent", 1, 1, 2, 1))
sketch3.addConstraint(Sketcher.Constraint("Tangent", 2, 2, 3, 2))
sketch3.addConstraint(Sketcher.Constraint("Tangent", 3, 1, 4, 1))
sketch3.addConstraint(Sketcher.Constraint("Coincident", 4, 2, 5, 1))
sketch3.addConstraint(Sketcher.Constraint("Coincident", 5, 2, 0, 1))
sketch3.addConstraint(Sketcher.Constraint("Coincident", 6, 2, 7, 1))
sketch3.addConstraint(Sketcher.Constraint("Tangent", 7, 2, 8, 2))
sketch3.addConstraint(Sketcher.Constraint("Tangent", 8, 1, 9, 1))
sketch3.addConstraint(Sketcher.Constraint("Tangent", 9, 2, 10, 2))
sketch3.addConstraint(Sketcher.Constraint("Tangent", 10, 1, 11, 1))
sketch3.addConstraint(Sketcher.Constraint("Coincident", 11, 2, 6, 1))
sketch3.addConstraint(Sketcher.Constraint("Coincident", 12, 2, 13, 1))
sketch3.addConstraint(Sketcher.Constraint("Tangent", 13, 2, 14, 2))
sketch3.addConstraint(Sketcher.Constraint("Tangent", 14, 1, 15, 1))
sketch3.addConstraint(Sketcher.Constraint("Tangent", 15, 2, 16, 2))
sketch3.addConstraint(Sketcher.Constraint("Tangent", 16, 1, 17, 1))
sketch3.addConstraint(Sketcher.Constraint("Coincident", 17, 2, 12, 1))
sketch3.addConstraint(Sketcher.Constraint("Coincident", 18, 2, 19, 1))
sketch3.addConstraint(Sketcher.Constraint("Tangent", 19, 2, 20, 2))
sketch3.addConstraint(Sketcher.Constraint("Tangent", 20, 1, 21, 1))
sketch3.addConstraint(Sketcher.Constraint("Tangent", 21, 2, 22, 2))
sketch3.addConstraint(Sketcher.Constraint("Tangent", 22, 1, 23, 1))
sketch3.addConstraint(Sketcher.Constraint("Coincident", 23, 2, 18, 1))
sketch3.addConstraint(Sketcher.Constraint("Vertical", 0))
sketch3.addConstraint(Sketcher.Constraint("Horizontal", 2))
sketch3.addConstraint(Sketcher.Constraint("Vertical", 4))
sketch3.addConstraint(Sketcher.Constraint("Horizontal", 5))
sketch3.addConstraint(Sketcher.Constraint("Horizontal", 6))
sketch3.addConstraint(Sketcher.Constraint("Vertical", 7))
sketch3.addConstraint(Sketcher.Constraint("Horizontal", 9))
sketch3.addConstraint(Sketcher.Constraint("Vertical", 11))
sketch3.addConstraint(Sketcher.Constraint("Horizontal", 12))
sketch3.addConstraint(Sketcher.Constraint("Vertical", 13))
sketch3.addConstraint(Sketcher.Constraint("Horizontal", 15))
sketch3.addConstraint(Sketcher.Constraint("Vertical", 17))
sketch3.addConstraint(Sketcher.Constraint("Horizontal", 18))
sketch3.addConstraint(Sketcher.Constraint("Vertical", 19))
sketch3.addConstraint(Sketcher.Constraint("Horizontal", 21))
sketch3.addConstraint(Sketcher.Constraint("Vertical", 23))
sketch3.addConstraint(Sketcher.Constraint("Equal", 1, 3))
sketch3.addConstraint(Sketcher.Constraint("Equal", 3, 8))
sketch3.addConstraint(Sketcher.Constraint("Equal", 8, 10))
sketch3.addConstraint(Sketcher.Constraint("Equal", 10, 14))
sketch3.addConstraint(Sketcher.Constraint("Equal", 14, 16))
sketch3.addConstraint(Sketcher.Constraint("Equal", 16, 20))
sketch3.addConstraint(Sketcher.Constraint("Equal", 20, 22))
sketch3.addConstraint(Sketcher.Constraint("Symmetric", 3, 3, 8, 3, -2))
sketch3.addConstraint(Sketcher.Constraint("Symmetric", 16, 3, 20, 3, -2))
sketch3.addConstraint(Sketcher.Constraint("Symmetric", 5, 2, 11, 2, -2))
sketch3.addConstraint(Sketcher.Constraint("Symmetric", 12, 2, 23, 2, -2))
sketch3.addConstraint(Sketcher.Constraint("Vertical", 3, 3, 14, 3))
sketch3.addConstraint(Sketcher.Constraint("Equal", 9, 12))
sketch3.addConstraint(Sketcher.Constraint("Equal", 11, 13))
sketch3.addConstraint(Sketcher.Constraint("Radius", 1, Q("2 mm")))
sketch3.addConstraint(Sketcher.Constraint("DistanceX", 2, 1, 2, 2, Q("16 mm")))
sketch3.addConstraint(Sketcher.Constraint("DistanceY", 0, 1, 0, 2, Q("18 mm")))
sketch3.addConstraint(Sketcher.Constraint("DistanceX", 1, 3, -1, 1, Q("52 mm")))
sketch3.addConstraint(Sketcher.Constraint("DistanceY", 3, 3, 14, 3, Q("55 mm")))
sketch3.addConstraint(Sketcher.Constraint("DistanceY", 1, 3, -1, 1, Q("16.024336 mm")))
pocket1 = body.newObject("PartDesign::Pocket", "Pocket")
pocket1.Profile = sketch3
pocket1.Length = 4
pocket1.Reversed = True

doc.recompute()
